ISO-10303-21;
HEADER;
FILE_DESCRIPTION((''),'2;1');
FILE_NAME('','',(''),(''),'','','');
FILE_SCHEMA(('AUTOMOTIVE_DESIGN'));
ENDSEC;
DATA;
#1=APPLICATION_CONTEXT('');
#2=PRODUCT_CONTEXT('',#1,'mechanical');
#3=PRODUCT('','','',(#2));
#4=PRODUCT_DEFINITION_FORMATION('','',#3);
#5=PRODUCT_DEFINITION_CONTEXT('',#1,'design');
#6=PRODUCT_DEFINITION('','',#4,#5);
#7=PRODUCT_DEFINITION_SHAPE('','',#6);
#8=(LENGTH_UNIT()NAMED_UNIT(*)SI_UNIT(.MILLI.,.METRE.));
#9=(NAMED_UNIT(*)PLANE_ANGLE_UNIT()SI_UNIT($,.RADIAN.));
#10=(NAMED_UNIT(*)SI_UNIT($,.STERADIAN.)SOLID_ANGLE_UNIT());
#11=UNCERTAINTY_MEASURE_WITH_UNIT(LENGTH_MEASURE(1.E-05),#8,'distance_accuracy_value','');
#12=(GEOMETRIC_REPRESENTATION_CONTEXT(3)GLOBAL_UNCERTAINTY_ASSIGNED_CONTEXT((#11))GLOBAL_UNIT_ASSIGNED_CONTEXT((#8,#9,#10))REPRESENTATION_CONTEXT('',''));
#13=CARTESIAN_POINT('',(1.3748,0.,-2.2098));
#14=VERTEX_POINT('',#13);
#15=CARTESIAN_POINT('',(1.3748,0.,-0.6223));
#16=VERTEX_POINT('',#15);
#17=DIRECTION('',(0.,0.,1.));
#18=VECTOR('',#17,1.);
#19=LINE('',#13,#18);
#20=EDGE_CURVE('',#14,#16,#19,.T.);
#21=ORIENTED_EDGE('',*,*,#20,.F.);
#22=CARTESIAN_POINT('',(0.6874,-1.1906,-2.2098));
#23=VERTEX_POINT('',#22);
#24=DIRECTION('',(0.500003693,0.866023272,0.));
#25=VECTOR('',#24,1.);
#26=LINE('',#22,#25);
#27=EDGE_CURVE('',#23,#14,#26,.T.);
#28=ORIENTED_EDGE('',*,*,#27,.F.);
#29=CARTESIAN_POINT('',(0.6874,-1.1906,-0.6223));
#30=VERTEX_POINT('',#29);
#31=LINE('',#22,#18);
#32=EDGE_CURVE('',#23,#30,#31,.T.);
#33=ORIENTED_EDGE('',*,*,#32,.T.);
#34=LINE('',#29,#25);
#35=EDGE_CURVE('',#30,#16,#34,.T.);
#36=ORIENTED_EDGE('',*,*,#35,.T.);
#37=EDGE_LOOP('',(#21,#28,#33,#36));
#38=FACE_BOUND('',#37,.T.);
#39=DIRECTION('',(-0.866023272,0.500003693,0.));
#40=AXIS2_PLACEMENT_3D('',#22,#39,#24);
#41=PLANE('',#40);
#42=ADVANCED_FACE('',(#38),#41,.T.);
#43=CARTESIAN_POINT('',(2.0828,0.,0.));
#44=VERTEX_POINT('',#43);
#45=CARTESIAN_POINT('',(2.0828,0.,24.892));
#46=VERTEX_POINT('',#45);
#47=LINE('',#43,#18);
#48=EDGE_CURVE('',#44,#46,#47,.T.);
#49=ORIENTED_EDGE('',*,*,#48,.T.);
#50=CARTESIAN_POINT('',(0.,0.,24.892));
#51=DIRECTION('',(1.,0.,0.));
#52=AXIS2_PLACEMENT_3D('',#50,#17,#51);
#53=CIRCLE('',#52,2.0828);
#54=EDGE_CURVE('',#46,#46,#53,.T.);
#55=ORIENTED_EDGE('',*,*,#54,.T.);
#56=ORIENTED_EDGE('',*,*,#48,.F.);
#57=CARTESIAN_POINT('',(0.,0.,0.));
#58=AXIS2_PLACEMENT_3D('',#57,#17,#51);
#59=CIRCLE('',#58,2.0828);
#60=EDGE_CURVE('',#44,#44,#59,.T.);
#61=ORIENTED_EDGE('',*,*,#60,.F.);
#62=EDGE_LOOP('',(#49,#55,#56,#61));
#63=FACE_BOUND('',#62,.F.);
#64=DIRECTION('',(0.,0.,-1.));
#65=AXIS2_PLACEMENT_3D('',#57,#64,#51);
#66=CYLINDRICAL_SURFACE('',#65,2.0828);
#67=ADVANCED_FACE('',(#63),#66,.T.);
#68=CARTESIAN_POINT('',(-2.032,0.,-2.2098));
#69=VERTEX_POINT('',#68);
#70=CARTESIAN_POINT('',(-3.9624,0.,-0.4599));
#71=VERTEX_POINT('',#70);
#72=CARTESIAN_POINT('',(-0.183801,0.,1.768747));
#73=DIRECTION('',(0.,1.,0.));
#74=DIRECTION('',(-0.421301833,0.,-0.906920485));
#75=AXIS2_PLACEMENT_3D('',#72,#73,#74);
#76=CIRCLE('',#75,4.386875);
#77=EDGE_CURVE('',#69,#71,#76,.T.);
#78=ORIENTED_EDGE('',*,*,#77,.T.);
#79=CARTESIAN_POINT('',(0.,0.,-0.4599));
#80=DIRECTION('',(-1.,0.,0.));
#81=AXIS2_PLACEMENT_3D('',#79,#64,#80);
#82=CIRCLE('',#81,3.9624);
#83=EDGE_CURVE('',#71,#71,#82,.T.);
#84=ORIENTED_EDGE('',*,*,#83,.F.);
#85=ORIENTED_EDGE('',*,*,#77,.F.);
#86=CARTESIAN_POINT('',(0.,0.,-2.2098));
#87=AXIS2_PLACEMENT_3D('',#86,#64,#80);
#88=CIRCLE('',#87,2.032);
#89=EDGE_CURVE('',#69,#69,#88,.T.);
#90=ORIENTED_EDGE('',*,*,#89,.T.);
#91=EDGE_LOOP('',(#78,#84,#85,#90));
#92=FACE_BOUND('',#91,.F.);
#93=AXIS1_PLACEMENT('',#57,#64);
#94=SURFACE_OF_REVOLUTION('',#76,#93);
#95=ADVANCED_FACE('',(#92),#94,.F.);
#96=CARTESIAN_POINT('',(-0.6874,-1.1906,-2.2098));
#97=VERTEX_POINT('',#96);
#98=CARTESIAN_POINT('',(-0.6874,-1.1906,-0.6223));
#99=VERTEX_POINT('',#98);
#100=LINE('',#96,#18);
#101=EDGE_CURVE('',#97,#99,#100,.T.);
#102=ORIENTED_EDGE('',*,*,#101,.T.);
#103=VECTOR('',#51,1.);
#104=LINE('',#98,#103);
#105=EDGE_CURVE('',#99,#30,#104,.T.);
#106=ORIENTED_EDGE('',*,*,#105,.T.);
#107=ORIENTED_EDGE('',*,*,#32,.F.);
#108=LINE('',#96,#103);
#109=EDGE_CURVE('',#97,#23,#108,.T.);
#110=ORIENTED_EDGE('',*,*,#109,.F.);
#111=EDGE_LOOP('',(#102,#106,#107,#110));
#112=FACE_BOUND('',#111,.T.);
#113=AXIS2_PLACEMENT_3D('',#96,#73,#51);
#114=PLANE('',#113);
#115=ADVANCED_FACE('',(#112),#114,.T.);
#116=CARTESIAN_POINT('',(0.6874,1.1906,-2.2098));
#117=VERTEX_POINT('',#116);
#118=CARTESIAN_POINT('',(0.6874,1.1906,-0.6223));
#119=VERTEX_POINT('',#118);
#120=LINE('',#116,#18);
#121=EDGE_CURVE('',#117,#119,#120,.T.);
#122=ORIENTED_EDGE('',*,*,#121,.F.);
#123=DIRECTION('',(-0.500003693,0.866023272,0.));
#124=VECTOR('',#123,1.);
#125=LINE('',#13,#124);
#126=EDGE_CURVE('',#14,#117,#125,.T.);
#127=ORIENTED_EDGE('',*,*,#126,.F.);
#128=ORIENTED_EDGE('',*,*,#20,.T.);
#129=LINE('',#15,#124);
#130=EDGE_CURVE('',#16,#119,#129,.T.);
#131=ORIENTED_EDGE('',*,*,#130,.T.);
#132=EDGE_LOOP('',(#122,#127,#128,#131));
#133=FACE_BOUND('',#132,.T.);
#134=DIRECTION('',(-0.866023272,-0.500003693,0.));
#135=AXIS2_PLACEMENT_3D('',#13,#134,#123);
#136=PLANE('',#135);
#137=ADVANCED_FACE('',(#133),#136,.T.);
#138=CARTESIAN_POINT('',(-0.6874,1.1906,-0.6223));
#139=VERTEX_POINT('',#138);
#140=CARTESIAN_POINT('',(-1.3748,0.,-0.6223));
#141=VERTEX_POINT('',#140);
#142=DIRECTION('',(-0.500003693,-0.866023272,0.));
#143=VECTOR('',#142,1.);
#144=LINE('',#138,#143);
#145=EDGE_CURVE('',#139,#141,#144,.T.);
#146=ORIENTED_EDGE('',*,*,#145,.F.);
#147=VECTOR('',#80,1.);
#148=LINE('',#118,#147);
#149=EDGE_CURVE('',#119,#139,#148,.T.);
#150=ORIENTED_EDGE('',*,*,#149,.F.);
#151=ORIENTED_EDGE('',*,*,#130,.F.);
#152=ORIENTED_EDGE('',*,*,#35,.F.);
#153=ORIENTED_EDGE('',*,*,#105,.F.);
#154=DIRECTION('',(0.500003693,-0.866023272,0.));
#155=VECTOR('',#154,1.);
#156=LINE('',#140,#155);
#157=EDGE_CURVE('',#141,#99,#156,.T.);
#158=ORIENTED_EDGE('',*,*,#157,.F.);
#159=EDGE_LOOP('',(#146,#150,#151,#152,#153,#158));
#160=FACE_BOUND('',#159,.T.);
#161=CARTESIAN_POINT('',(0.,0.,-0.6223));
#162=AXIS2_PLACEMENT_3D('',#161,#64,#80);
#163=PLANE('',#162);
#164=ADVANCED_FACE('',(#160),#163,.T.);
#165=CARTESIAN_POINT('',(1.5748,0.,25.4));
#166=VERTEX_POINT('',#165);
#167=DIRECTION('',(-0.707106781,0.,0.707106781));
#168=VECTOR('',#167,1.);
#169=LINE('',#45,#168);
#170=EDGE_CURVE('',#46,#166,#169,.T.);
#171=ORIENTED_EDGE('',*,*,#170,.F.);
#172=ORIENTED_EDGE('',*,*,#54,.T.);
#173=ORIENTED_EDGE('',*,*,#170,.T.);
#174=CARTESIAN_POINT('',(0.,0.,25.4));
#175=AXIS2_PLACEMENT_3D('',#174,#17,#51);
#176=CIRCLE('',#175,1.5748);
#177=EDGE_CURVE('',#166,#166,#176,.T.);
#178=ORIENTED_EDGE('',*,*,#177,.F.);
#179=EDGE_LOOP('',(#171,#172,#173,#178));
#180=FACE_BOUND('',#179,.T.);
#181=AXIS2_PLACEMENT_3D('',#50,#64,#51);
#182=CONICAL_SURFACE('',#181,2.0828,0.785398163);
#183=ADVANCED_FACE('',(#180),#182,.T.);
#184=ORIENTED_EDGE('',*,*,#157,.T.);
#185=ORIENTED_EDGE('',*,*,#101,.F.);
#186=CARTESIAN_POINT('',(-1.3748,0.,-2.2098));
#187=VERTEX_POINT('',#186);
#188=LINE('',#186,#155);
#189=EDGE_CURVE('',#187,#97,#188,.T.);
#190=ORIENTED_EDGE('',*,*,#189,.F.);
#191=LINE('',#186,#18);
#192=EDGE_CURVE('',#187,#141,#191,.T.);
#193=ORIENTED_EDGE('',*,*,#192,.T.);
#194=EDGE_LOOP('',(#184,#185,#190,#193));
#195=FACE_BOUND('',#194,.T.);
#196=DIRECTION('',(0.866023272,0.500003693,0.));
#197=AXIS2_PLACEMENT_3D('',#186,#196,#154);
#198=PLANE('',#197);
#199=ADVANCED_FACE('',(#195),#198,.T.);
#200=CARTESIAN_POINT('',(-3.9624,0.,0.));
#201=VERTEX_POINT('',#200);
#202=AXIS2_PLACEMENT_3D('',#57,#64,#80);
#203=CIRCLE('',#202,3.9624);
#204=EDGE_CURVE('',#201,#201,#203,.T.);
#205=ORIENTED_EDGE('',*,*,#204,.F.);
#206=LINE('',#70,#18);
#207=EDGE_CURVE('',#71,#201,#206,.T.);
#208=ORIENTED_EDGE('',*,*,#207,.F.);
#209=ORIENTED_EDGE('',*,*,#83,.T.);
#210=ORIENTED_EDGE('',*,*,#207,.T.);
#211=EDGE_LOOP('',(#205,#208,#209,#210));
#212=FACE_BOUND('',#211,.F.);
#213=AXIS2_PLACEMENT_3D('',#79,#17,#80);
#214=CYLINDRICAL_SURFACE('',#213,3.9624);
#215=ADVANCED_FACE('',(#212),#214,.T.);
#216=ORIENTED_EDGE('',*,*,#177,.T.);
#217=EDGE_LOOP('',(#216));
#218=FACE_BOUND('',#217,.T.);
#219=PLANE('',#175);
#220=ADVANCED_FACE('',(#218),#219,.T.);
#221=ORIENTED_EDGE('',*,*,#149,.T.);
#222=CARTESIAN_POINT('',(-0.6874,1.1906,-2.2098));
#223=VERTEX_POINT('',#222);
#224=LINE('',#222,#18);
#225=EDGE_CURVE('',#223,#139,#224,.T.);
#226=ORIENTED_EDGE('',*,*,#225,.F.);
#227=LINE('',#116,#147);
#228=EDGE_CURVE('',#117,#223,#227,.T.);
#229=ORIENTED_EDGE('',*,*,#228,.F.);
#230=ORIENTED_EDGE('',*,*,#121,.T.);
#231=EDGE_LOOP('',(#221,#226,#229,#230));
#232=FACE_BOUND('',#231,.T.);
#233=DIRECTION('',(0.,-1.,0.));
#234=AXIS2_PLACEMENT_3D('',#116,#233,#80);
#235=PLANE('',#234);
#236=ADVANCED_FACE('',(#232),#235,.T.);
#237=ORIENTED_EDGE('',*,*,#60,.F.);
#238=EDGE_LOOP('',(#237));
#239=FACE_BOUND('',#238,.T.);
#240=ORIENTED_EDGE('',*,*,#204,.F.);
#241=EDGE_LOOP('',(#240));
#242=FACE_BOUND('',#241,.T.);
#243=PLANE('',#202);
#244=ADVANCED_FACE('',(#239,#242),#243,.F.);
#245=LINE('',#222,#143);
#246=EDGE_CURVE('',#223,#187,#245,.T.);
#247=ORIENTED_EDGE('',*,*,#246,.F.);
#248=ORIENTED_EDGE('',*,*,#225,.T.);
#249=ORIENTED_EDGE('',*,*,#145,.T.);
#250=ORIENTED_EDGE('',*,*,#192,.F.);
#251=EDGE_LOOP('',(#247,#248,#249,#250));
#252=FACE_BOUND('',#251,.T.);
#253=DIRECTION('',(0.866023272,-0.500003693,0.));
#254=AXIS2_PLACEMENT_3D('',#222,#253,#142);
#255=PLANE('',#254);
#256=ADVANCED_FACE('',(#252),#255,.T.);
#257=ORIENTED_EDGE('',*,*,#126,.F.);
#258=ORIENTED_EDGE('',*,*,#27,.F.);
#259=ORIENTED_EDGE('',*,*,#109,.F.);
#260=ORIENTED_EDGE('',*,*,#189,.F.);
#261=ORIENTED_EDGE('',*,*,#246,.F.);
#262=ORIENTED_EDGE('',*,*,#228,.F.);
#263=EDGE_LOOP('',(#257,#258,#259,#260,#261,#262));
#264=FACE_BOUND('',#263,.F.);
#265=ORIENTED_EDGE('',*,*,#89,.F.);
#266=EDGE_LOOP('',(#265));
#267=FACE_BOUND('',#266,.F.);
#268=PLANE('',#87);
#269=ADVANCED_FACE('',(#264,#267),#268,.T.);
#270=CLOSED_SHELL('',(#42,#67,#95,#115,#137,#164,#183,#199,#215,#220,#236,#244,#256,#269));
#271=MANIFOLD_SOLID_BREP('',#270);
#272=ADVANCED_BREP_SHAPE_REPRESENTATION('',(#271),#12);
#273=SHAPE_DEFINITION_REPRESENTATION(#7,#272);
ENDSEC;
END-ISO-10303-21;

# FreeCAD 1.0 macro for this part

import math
import FreeCAD as App
import Part
import Sketcher
Q = App.Units.Quantity


def edges_at(feature, points):
    """Names of the edges that pass closest to the given points."""
    edges = feature.Shape.Edges
    near = lambda p: min(range(len(edges)), key=lambda i: edges[i].distToShape(Part.Vertex(*p))[0])
    return sorted({f"Edge{near(p) + 1}" for p in points})


def add_polygon(sketch, points):
    """Adds a closed chain of lines whose ends are joined by coincident constraints."""
    first, n = sketch.GeometryCount, len(points)
    for a, b in zip(points, points[1:] + points[:1]):
        sketch.addGeometry(Part.LineSegment(App.Vector(*a, 0), App.Vector(*b, 0)), False)
    for i in range(n):
        sketch.addConstraint(Sketcher.Constraint("Coincident", first + i, 2, first + (i + 1) % n, 1))

doc = App.newDocument("Part")
body = doc.addObject("PartDesign::Body", "Body")

# Sketch on XY plane
sketch1 = doc.addObject("Sketcher::SketchObject", "Sketch")
body.addObject(sketch1)
sketch1.AttachmentSupport = (doc.XY_Plane, [""])
sketch1.MapMode = "FlatFace"
sketch1.addGeometry(Part.Circle(App.Vector(0, 0, 0), App.Vector(0, 0, 1), 2.1), False)
sketch1.addConstraint([
    Sketcher.Constraint("Coincident", 0, 3, -1, 1),
    Sketcher.Constraint("Diameter", 0, Q("0.164 in")),
])
pad1 = doc.addObject("PartDesign::Pad", "Pad")
body.addObject(pad1)
pad1.Profile = sketch1
pad1.Length = Q("1 in")

# Sketch on XZ plane
sketch2 = doc.addObject("Sketcher::SketchObject", "Sketch001")
body.addObject(sketch2)
sketch2.AttachmentSupport = (doc.XZ_Plane, [""])
sketch2.MapMode = "FlatFace"
sketch2.addGeometry([
    Part.LineSegment(App.Vector(-3.96, 0, 0), App.Vector(0, 0, 0)),  # 0
    Part.LineSegment(App.Vector(0, 0, 0), App.Vector(0, -2.21, 0)),  # 1
    Part.LineSegment(App.Vector(0, -2.21, 0), App.Vector(-2.03, -2.21, 0)),  # 2
    Part.ArcOfCircle(Part.Circle(App.Vector(-0.18, 1.77, 0), App.Vector(0, 0, 1), 4.39), math.radians(-149), math.radians(-115)),  # 3
    Part.LineSegment(App.Vector(-3.96, -0.46, 0), App.Vector(-3.96, 0, 0)),  # 4
], False)
sketch2.addConstraint([
    Sketcher.Constraint("Coincident", 0, 2, 1, 1),
    Sketcher.Constraint("Coincident", 1, 2, 2, 1),
    Sketcher.Constraint("Coincident", 2, 2, 3, 2),
    Sketcher.Constraint("Coincident", 3, 1, 4, 1),
    Sketcher.Constraint("Coincident", 4, 2, 0, 1),
    Sketcher.Constraint("Horizontal", 0),
    Sketcher.Constraint("Vertical", 1),
    Sketcher.Constraint("Horizontal", 2),
    Sketcher.Constraint("Vertical", 4),
    Sketcher.Constraint("Coincident", 0, 2, -1, 1),
    Sketcher.Constraint("DistanceX", 2, 2, 2, 1, Q("0.08 in")),
    Sketcher.Constraint("DistanceX", 0, 1, 0, 2, Q("0.156 in")),
    Sketcher.Constraint("DistanceY", 1, 2, 1, 1, Q("0.087 in")),
    Sketcher.Constraint("Radius", 3, Q("4.387 mm")),
    Sketcher.Constraint("DistanceY", 4, 1, 4, 2, Q("0.0181 in")),
])
revolution = doc.addObject("PartDesign::Revolution", "Revolution")
body.addObject(revolution)
revolution.Profile = sketch2
revolution.ReferenceAxis = (sketch2, ["V_Axis"])
revolution.Angle = 360

# Sketch on XY plane
sketch3 = doc.addObject("Sketcher::SketchObject", "Sketch002")
body.addObject(sketch3)
sketch3.AttachmentSupport = (doc.XY_Plane, [""])
sketch3.MapMode = "FlatFace"
sketch3.AttachmentOffset = App.Placement(App.Vector(0, 0, -0.087 * 25.4), App.Rotation())
add_polygon(sketch3, [(-0.7, 1.2), (0.7, 1.2), (1.4, 0), (0.7, -1.2), (-0.7, -1.2), (-1.4, 0)])  # lines 0-5
sketch3.addConstraint([
    Sketcher.Constraint("Horizontal", 0),
    Sketcher.Constraint("Horizontal", 3),
    Sketcher.Constraint("Symmetric", 0, 2, 3, 2, -1, 1),
    Sketcher.Constraint("Symmetric", 1, 2, 4, 2, -1, 1),
    Sketcher.Constraint("PointOnObject", 1, 2, -1),
    Sketcher.Constraint("Parallel", 2, 5),
    Sketcher.Constraint("Vertical", 0, 2, 2, 2),
    Sketcher.Constraint("Angle", 1, Q("-59.9998 deg")),
    Sketcher.Constraint("DistanceY", 2, 2, 0, 2, Q("0.093748 in")),
    Sketcher.Constraint("DistanceX", 0, 1, 0, 2, Q("1.3748 mm")),
])
pocket1 = doc.addObject("PartDesign::Pocket", "Pocket")
body.addObject(pocket1)
pocket1.Profile = sketch3
pocket1.Length = Q("0.0625 in")
pocket1.Reversed = True
doc.recompute()

chamfer = doc.addObject("PartDesign::Chamfer", "Chamfer")
body.addObject(chamfer)
chamfer.Base = (pocket1, edges_at(pocket1, [(-2.083, 0, 25.4)]))
chamfer.Size = Q("0.02 in")

doc.recompute()
